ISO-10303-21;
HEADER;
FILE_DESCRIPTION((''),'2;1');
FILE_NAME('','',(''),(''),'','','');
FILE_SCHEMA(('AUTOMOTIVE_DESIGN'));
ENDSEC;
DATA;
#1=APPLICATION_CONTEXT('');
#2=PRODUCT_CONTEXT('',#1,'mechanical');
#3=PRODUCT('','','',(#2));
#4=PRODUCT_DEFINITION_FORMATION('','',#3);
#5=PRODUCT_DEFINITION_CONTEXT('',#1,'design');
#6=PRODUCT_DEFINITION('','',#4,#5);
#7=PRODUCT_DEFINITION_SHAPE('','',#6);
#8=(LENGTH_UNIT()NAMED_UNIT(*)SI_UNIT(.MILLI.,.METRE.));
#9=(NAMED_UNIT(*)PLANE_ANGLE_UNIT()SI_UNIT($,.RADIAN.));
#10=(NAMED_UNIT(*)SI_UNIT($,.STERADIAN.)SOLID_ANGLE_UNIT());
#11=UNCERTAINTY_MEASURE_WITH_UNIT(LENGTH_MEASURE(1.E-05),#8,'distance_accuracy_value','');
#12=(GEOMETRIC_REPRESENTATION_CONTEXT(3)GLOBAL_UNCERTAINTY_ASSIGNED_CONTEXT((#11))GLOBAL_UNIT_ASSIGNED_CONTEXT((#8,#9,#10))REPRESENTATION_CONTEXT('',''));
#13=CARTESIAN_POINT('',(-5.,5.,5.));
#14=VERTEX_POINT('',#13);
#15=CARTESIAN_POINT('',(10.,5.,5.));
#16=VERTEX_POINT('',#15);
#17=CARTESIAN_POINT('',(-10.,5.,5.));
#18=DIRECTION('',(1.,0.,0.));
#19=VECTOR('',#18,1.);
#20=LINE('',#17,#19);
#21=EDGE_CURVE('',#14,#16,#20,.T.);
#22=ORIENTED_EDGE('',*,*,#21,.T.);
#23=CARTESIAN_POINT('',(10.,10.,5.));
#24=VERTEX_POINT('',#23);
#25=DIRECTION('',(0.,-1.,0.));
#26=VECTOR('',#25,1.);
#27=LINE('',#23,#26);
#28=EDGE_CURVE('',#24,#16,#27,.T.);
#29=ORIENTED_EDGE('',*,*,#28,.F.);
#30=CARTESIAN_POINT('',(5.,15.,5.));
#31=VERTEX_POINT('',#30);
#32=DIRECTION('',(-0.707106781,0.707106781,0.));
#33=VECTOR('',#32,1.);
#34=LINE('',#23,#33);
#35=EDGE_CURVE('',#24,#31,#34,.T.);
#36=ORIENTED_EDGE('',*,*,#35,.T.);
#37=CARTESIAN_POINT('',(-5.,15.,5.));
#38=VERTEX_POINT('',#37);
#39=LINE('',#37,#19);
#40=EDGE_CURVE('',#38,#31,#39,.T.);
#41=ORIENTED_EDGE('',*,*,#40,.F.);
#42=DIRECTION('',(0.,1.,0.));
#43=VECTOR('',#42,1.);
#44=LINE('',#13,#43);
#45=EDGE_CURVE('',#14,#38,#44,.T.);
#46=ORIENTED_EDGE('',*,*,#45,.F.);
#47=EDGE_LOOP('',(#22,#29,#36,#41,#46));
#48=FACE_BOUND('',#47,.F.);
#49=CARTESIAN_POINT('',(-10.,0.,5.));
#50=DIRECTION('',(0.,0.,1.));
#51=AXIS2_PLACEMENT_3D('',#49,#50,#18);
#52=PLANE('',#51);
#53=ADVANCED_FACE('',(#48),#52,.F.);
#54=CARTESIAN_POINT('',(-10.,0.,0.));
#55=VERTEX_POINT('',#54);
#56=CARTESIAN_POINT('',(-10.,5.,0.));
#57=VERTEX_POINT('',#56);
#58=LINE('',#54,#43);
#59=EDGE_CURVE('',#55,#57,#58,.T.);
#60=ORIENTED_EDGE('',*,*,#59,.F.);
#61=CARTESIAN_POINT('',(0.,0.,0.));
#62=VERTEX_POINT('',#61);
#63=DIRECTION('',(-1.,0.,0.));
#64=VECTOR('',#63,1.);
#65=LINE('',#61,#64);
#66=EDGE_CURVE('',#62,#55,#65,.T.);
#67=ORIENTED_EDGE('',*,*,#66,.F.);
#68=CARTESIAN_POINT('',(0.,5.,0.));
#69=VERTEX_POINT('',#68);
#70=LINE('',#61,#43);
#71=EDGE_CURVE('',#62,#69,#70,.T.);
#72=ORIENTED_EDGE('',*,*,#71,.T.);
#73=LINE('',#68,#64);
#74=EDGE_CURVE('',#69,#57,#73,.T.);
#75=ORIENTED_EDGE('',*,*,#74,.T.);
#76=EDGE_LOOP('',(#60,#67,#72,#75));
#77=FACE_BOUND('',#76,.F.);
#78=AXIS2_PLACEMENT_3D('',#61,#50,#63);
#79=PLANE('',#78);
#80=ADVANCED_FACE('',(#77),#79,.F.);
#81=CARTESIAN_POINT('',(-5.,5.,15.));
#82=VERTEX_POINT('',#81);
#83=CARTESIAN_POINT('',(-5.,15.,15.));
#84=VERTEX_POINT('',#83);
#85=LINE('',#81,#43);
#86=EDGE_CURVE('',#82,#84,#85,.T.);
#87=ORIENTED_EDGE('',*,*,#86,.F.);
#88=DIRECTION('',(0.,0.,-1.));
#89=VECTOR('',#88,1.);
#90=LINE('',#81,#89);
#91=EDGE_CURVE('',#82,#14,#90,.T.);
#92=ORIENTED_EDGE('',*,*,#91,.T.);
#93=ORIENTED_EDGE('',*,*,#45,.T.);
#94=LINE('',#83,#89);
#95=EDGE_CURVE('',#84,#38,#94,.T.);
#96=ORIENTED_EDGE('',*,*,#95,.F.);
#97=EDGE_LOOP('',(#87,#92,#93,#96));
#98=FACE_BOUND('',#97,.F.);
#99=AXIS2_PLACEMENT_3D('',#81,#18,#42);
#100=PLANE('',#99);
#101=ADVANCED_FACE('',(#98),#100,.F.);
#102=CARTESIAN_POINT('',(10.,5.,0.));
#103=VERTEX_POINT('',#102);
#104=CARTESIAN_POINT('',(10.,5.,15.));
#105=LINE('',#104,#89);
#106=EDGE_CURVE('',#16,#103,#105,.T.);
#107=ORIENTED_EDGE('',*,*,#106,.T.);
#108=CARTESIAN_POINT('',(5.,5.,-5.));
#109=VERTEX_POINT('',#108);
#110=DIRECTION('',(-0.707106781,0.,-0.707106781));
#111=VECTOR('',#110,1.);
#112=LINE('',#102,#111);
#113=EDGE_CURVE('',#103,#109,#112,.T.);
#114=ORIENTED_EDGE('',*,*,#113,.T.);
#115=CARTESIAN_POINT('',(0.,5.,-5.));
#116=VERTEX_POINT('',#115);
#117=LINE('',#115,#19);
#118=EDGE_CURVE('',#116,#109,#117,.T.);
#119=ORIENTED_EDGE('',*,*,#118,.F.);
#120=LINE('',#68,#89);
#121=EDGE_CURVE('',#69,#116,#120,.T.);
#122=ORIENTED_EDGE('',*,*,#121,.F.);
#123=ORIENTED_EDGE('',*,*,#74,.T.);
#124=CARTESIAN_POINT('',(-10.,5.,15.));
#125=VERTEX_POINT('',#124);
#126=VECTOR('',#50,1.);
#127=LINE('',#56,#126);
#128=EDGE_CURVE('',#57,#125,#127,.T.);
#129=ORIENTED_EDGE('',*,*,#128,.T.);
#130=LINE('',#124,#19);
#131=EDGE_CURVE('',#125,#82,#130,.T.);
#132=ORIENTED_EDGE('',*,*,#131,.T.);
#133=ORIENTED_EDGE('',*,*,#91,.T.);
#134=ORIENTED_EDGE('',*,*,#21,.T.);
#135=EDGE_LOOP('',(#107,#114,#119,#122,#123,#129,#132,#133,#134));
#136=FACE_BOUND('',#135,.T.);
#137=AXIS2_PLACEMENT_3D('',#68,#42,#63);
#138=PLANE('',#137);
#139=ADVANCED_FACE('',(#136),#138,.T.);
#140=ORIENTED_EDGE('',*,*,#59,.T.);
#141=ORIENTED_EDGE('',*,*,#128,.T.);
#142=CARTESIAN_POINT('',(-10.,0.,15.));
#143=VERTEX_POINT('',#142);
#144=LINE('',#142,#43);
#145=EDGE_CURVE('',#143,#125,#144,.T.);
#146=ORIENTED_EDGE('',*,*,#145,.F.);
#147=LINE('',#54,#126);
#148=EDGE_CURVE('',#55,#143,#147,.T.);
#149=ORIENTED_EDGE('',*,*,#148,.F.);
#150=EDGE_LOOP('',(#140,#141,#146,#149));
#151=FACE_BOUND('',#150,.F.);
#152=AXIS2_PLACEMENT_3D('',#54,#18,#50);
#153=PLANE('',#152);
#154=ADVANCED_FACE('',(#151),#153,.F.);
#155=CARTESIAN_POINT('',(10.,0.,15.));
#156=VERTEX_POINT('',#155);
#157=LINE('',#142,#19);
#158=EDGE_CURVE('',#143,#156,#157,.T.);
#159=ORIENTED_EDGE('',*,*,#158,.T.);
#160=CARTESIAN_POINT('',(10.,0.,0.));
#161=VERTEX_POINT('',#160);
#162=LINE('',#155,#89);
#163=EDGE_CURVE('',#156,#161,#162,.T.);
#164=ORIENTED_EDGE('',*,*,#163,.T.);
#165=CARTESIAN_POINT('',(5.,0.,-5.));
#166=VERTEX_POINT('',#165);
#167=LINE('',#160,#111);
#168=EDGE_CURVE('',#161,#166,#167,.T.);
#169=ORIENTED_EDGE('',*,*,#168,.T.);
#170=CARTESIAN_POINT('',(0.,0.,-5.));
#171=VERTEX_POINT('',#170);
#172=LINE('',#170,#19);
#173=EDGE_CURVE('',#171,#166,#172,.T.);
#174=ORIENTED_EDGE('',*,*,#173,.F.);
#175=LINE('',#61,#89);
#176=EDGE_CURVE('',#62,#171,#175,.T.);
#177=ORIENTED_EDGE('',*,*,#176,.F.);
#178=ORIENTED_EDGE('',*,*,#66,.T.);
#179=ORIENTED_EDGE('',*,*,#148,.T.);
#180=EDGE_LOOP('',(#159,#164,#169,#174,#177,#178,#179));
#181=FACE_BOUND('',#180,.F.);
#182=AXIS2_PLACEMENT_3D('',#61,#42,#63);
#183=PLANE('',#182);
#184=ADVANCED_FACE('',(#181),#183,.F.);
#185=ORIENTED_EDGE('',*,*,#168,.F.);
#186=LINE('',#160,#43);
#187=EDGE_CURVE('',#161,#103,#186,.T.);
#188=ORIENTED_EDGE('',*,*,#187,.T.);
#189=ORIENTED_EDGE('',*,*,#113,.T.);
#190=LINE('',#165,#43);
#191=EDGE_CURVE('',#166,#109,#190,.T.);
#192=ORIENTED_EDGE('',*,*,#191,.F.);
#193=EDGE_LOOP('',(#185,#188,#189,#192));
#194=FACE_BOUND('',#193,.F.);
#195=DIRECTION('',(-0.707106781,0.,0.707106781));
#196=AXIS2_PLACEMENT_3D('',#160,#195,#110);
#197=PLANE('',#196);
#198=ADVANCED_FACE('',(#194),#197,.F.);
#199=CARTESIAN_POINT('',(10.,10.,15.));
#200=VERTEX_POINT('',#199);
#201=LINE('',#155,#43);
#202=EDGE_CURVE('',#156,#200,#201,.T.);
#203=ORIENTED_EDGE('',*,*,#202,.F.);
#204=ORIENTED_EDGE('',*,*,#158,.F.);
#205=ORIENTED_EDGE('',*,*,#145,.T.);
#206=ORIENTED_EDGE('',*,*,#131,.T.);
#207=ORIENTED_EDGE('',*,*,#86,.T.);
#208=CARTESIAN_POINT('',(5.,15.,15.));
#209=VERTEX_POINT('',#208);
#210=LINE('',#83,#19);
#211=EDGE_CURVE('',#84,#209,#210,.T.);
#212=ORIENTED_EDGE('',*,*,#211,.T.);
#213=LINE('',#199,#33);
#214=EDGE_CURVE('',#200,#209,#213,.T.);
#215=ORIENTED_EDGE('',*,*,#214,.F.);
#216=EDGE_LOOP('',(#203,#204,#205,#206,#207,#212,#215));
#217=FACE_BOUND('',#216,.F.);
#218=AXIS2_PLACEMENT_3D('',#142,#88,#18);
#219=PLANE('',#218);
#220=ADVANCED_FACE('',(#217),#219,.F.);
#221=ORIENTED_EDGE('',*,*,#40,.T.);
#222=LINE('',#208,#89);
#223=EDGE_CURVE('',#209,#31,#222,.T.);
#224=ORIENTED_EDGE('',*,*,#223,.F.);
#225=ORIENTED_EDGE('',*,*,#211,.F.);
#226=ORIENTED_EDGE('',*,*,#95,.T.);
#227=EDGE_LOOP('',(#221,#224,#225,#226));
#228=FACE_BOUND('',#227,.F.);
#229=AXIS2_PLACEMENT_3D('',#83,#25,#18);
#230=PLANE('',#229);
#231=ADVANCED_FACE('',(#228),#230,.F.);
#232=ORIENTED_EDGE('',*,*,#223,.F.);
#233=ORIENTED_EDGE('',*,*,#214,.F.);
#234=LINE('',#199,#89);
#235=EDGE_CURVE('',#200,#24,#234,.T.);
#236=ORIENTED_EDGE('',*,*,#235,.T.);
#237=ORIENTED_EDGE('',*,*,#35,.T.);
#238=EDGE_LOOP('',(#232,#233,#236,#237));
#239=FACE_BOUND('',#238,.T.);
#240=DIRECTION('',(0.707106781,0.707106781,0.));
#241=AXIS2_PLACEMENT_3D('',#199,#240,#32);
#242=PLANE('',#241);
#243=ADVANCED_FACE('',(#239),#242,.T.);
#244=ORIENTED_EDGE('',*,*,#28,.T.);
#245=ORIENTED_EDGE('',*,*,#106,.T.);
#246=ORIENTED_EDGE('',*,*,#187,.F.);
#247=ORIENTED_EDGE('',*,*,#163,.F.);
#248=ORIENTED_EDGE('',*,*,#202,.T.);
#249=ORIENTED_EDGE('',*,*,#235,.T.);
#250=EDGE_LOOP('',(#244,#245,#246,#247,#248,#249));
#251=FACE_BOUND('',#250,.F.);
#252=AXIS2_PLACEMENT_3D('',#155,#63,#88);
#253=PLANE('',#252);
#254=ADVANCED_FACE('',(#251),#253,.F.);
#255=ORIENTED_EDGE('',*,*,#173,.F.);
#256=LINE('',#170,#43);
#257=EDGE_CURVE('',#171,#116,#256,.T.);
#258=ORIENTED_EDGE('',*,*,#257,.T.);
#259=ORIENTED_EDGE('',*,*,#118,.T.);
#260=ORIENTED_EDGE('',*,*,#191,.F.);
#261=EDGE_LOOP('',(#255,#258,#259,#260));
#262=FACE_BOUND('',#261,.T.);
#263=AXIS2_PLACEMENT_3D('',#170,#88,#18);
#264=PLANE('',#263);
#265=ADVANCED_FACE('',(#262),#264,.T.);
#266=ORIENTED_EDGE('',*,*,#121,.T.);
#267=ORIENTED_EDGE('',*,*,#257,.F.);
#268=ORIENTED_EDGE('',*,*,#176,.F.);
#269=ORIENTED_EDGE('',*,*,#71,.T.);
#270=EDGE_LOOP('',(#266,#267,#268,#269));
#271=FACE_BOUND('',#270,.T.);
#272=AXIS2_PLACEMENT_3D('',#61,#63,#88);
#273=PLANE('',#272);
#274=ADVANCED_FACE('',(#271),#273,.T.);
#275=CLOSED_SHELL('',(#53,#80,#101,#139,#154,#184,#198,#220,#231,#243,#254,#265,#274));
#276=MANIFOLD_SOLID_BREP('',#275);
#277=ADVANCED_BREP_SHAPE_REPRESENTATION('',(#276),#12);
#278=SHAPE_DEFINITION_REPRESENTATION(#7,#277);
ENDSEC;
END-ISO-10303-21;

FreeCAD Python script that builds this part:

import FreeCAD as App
import Part
import Sketcher


def add_polygon(sketch, points):
    """Adds a closed chain of lines whose ends are joined by coincident constraints."""
    first, n = sketch.GeometryCount, len(points)
    for a, b in zip(points, points[1:] + points[:1]):
        sketch.addGeometry(Part.LineSegment(App.Vector(*a, 0), App.Vector(*b, 0)), False)
    for i in range(n):
        sketch.addConstraint(Sketcher.Constraint("Coincident", first + i, 2, first + (i + 1) % n, 1))

doc = App.newDocument("Part")
body = doc.addObject("PartDesign::Body", "Body")

# Sketch on XZ plane
sketch1 = body.newObject("Sketcher::SketchObject", "Sketch")
sketch1.AttachmentSupport = (doc.getObject("XZ_Plane"), [""])
sketch1.MapMode = "FlatFace"
add_polygon(sketch1, [(-10, 0), (-10, 15), (10, 15), (10, 0), (5, -5), (0, -5), (0, 0)])  # lines 0-6
sketch1.addConstraint([
    Sketcher.Constraint("Vertical", 0),
    Sketcher.Constraint("Horizontal", 1),
    Sketcher.Constraint("Vertical", 2),
    Sketcher.Constraint("Horizontal", 4),
    Sketcher.Constraint("Vertical", 5),
    Sketcher.Constraint("Horizontal", 6),
    Sketcher.Constraint("Coincident", 5, 2, -1, 1),
    Sketcher.Constraint("Symmetric", 2, 2, 6, 2, -1, 1),
    Sketcher.Constraint("Equal", 4, 5),
    Sketcher.Constraint("DistanceX", 1, 1, 1, 2, 20.0),
    Sketcher.Constraint("DistanceX", 4, 2, 4, 1, 5.0),
    Sketcher.Constraint("DistanceY", 0, 1, 0, 2, 15.0),
])
pad1 = body.newObject("PartDesign::Pad", "Pad")
pad1.Profile = sketch1
pad1.Length = 5
pad1.Reversed = True

# Sketch on XY plane
sketch2 = body.newObject("Sketcher::SketchObject", "Sketch001")
sketch2.AttachmentSupport = (doc.getObject("XY_Plane"), [""])
sketch2.MapMode = "FlatFace"
sketch2.AttachmentOffset = App.Placement(App.Vector(0, 0, 15), App.Rotation())
add_polygon(sketch2, [(-5, 15), (-5, 5), (10, 5), (10, 10), (5, 15)])  # lines 0-4
sketch2.addConstraint([
    Sketcher.Constraint("Vertical", 0),
    Sketcher.Constraint("Horizontal", 1),
    Sketcher.Constraint("Vertical", 2),
    Sketcher.Constraint("Horizontal", 4),
    Sketcher.Constraint("Equal", 4, 0),
    Sketcher.Constraint("DistanceX", 4, 2, 4, 1, 10.0),
    Sketcher.Constraint("DistanceY", 2, 1, 2, 2, 5.0),
    Sketcher.Constraint("DistanceX", 0, 2, -1, 1, 5.0),
    Sketcher.Constraint("DistanceY", -1, 1, 0, 2, 5.0),
    Sketcher.Constraint("DistanceX", -1, 1, 1, 2, 10.0),
])
pad2 = body.newObject("PartDesign::Pad", "Pad001")
pad2.Profile = sketch2
pad2.Length = 10
pad2.Reversed = True

doc.recompute()
